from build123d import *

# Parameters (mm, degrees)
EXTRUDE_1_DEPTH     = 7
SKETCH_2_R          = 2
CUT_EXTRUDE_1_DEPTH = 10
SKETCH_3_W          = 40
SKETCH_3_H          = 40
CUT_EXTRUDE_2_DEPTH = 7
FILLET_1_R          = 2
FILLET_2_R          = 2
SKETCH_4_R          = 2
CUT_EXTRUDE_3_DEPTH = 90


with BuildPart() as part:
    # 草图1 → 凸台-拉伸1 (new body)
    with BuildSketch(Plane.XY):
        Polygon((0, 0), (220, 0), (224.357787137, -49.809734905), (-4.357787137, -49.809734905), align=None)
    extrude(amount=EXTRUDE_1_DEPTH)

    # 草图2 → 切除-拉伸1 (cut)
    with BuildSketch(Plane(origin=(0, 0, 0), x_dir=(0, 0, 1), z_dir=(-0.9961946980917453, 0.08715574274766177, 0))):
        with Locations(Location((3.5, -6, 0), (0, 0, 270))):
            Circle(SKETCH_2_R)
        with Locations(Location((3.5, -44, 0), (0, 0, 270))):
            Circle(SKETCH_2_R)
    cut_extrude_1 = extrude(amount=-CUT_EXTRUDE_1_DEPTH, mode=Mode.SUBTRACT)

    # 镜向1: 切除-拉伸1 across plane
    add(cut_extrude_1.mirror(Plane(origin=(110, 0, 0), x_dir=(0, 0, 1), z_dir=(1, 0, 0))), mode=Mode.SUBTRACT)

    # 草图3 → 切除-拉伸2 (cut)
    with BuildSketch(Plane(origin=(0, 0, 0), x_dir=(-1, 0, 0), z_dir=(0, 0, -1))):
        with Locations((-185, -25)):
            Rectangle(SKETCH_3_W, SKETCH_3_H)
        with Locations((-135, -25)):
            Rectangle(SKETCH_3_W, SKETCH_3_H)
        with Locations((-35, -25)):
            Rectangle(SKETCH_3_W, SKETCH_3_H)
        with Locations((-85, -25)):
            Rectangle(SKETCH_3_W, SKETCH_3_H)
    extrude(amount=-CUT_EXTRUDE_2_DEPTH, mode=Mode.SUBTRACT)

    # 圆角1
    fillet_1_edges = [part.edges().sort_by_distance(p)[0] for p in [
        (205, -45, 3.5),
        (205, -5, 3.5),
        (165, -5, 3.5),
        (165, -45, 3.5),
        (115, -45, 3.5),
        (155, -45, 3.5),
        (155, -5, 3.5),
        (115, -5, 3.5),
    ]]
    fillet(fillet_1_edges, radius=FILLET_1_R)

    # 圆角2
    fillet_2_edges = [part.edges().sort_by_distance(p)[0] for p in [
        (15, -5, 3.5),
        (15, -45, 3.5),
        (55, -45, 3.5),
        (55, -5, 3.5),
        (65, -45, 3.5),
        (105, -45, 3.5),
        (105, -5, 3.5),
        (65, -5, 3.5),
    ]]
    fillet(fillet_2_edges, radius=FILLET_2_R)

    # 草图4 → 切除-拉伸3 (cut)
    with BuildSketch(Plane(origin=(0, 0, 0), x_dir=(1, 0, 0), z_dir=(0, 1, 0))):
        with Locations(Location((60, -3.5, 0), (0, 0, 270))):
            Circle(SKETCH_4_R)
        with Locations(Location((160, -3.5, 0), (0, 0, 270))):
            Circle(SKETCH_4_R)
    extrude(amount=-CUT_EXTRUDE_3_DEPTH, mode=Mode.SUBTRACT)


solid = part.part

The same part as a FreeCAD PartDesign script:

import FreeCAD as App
import Part
import Sketcher
Q = App.Units.Quantity


def edges_at(feature, points):
    """Names of the edges that pass closest to the given points."""
    edges = feature.Shape.Edges
    near = lambda p: min(range(len(edges)), key=lambda i: edges[i].distToShape(Part.Vertex(*p))[0])
    return sorted({f"Edge{near(p) + 1}" for p in points})

doc = App.newDocument("Part")
body = doc.addObject("PartDesign::Body", "Body")

sketch1 = body.newObject("Sketcher::SketchObject", "Sketch")
sketch1.AttachmentSupport = (doc.getObject("XY_Plane"), [""])
sketch1.MapMode = "FlatFace"
sketch1.addGeometry([
    Part.LineSegment(App.Vector(220, 0, 0), App.Vector(0, 0, 0)),
    Part.LineSegment(App.Vector(0, 0, 0), App.Vector(-4, -50, 0)),
    Part.LineSegment(App.Vector(-4, -50, 0), App.Vector(224, -50, 0)),
    Part.LineSegment(App.Vector(224, -50, 0), App.Vector(220, 0, 0)),
], False)
sketch1.addConstraint([
    Sketcher.Constraint("Coincident", 0, 2, 1, 1),
    Sketcher.Constraint("Coincident", 1, 2, 2, 1),
    Sketcher.Constraint("Coincident", 2, 2, 3, 1),
    Sketcher.Constraint("Coincident", 3, 2, 0, 1),
    Sketcher.Constraint("Horizontal", 0),
    Sketcher.Constraint("Horizontal", 2),
    Sketcher.Constraint("Coincident", 0, 2, -1, 1),
    Sketcher.Constraint("Equal", 1, 3),
    Sketcher.Constraint("DistanceX", 0, 2, 0, 1, 220.0),
    Sketcher.Constraint("Angle", 1, Q("-95 deg")),
    Sketcher.Constraint("Distance", 1, 50.0),
])
pad1 = body.newObject("PartDesign::Pad", "Pad")
pad1.Profile = sketch1
pad1.Length = 7

sketch2 = body.newObject("Sketcher::SketchObject", "Sketch001")
sketch2.Placement = App.Placement(App.Vector(0, 0, 0), App.Rotation(App.Vector(0, 0, 1), App.Vector(0.087155743, 0.996194698, 0), App.Vector(-0.996194698, 0.087155743, 0), "ZXY"))
sketch2.addGeometry([
    Part.Circle(App.Vector(3.5, -6, 0), App.Vector(0, 0, 1), 2),
    Part.Circle(App.Vector(3.5, -44, 0), App.Vector(0, 0, 1), 2),
], False)
sketch2.addConstraint([
    Sketcher.Constraint("Equal", 0, 1),
    Sketcher.Constraint("Vertical", 0, 3, 1, 3),
    Sketcher.Constraint("Diameter", 0, 4.0),
    Sketcher.Constraint("DistanceY", 0, 3, -1, 1, 6.0),
    Sketcher.Constraint("DistanceY", 1, 3, -1, 1, 44.0),
    Sketcher.Constraint("DistanceX", -1, 1, 0, 3, 3.5),
])
pocket1 = body.newObject("PartDesign::Pocket", "Pocket")
pocket1.Profile = sketch2
pocket1.Length = 10
doc.recompute()

datumplane = body.newObject("PartDesign::Plane", "DatumPlane")
datumplane.AttachmentSupport = (doc.getObject("YZ_Plane"), [""])
datumplane.MapMode = "FlatFace"
datumplane.AttachmentOffset = App.Placement(App.Vector(0, 0, 110), App.Rotation())
mirrored = body.newObject("PartDesign::Mirrored", "Mirrored")
mirrored.Originals = [pocket1]
mirrored.MirrorPlane = (datumplane, [""])
body.Tip = mirrored

sketch3 = body.newObject("Sketcher::SketchObject", "Sketch002")
sketch3.AttachmentSupport = (doc.getObject("XY_Plane"), [""])
sketch3.MapMode = "FlatFace"
sketch3.addGeometry([
    Part.LineSegment(App.Vector(205, -5, 0), App.Vector(205, -45, 0)),
    Part.LineSegment(App.Vector(205, -45, 0), App.Vector(165, -45, 0)),
    Part.LineSegment(App.Vector(165, -45, 0), App.Vector(165, -5, 0)),
    Part.LineSegment(App.Vector(165, -5, 0), App.Vector(205, -5, 0)),
    Part.LineSegment(App.Vector(155, -5, 0), App.Vector(155, -45, 0)),
    Part.LineSegment(App.Vector(155, -45, 0), App.Vector(115, -45, 0)),
    Part.LineSegment(App.Vector(115, -45, 0), App.Vector(115, -5, 0)),
    Part.LineSegment(App.Vector(115, -5, 0), App.Vector(155, -5, 0)),
    Part.LineSegment(App.Vector(55, -5, 0), App.Vector(55, -45, 0)),
    Part.LineSegment(App.Vector(55, -45, 0), App.Vector(15, -45, 0)),
    Part.LineSegment(App.Vector(15, -45, 0), App.Vector(15, -5, 0)),
    Part.LineSegment(App.Vector(15, -5, 0), App.Vector(55, -5, 0)),
    Part.LineSegment(App.Vector(105, -5, 0), App.Vector(105, -45, 0)),
    Part.LineSegment(App.Vector(105, -45, 0), App.Vector(65, -45, 0)),
    Part.LineSegment(App.Vector(65, -45, 0), App.Vector(65, -5, 0)),
    Part.LineSegment(App.Vector(65, -5, 0), App.Vector(105, -5, 0)),
], False)
sketch3.addConstraint([
    Sketcher.Constraint("Coincident", 0, 2, 1, 1),
    Sketcher.Constraint("Coincident", 1, 2, 2, 1),
    Sketcher.Constraint("Coincident", 2, 2, 3, 1),
    Sketcher.Constraint("Coincident", 3, 2, 0, 1),
    Sketcher.Constraint("Coincident", 4, 2, 5, 1),
    Sketcher.Constraint("Coincident", 5, 2, 6, 1),
    Sketcher.Constraint("Coincident", 6, 2, 7, 1),
    Sketcher.Constraint("Coincident", 7, 2, 4, 1),
    Sketcher.Constraint("Coincident", 8, 2, 9, 1),
    Sketcher.Constraint("Coincident", 9, 2, 10, 1),
    Sketcher.Constraint("Coincident", 10, 2, 11, 1),
    Sketcher.Constraint("Coincident", 11, 2, 8, 1),
    Sketcher.Constraint("Coincident", 12, 2, 13, 1),
    Sketcher.Constraint("Coincident", 13, 2, 14, 1),
    Sketcher.Constraint("Coincident", 14, 2, 15, 1),
    Sketcher.Constraint("Coincident", 15, 2, 12, 1),
    Sketcher.Constraint("Vertical", 0),
    Sketcher.Constraint("Horizontal", 1),
    Sketcher.Constraint("Vertical", 2),
    Sketcher.Constraint("Horizontal", 3),
    Sketcher.Constraint("Vertical", 4),
    Sketcher.Constraint("Horizontal", 5),
    Sketcher.Constraint("Vertical", 6),
    Sketcher.Constraint("Horizontal", 7),
    Sketcher.Constraint("Vertical", 8),
    Sketcher.Constraint("Horizontal", 9),
    Sketcher.Constraint("Vertical", 10),
    Sketcher.Constraint("Horizontal", 11),
    Sketcher.Constraint("Vertical", 12),
    Sketcher.Constraint("Horizontal", 13),
    Sketcher.Constraint("Vertical", 14),
    Sketcher.Constraint("Horizontal", 15),
    Sketcher.Constraint("Horizontal", 1, 2, 4, 2),
    Sketcher.Constraint("Horizontal", 3, 2, 6, 2),
    Sketcher.Constraint("Horizontal", 5, 2, 8, 2),
    Sketcher.Constraint("Horizontal", 7, 2, 10, 2),
    Sketcher.Constraint("Horizontal", 9, 2, 12, 2),
    Sketcher.Constraint("Horizontal", 11, 2, 14, 2),
    Sketcher.Constraint("Equal", 3, 5),
    Sketcher.Constraint("Equal", 7, 9),
    Sketcher.Constraint("Equal", 11, 13),
    Sketcher.Constraint("Equal", 15, 0),
    Sketcher.Constraint("DistanceX", 1, 2, 1, 1, 40.0),
    Sketcher.Constraint("DistanceX", -1, 1, 0, 2, 205.0),
    Sketcher.Constraint("DistanceY", 0, 2, -1, 1, 45.0),
    Sketcher.Constraint("DistanceX", -1, 1, 4, 2, 155.0),
    Sketcher.Constraint("DistanceX", -1, 1, 8, 2, 55.0),
    Sketcher.Constraint("DistanceX", -1, 1, 12, 2, 105.0),
])
pocket2 = body.newObject("PartDesign::Pocket", "Pocket001")
pocket2.Profile = sketch3
pocket2.Length = 7
pocket2.Reversed = True
doc.recompute()

fillet = body.newObject("PartDesign::Fillet", "Fillet")
fillet.Base = (pocket2, edges_at(pocket2, [
    (205, -45, 3.5),
    (205, -5, 3.5),
    (165, -5, 3.5),
    (165, -45, 3.5),
    (115, -45, 3.5),
    (155, -45, 3.5),
    (155, -5, 3.5),
    (115, -5, 3.5),
]))
fillet.Radius = 2
doc.recompute()

fillet2 = body.newObject("PartDesign::Fillet", "Fillet001")
fillet2.Base = (fillet, edges_at(fillet, [
    (15, -5, 3.5),
    (15, -45, 3.5),
    (55, -45, 3.5),
    (55, -5, 3.5),
    (65, -45, 3.5),
    (105, -45, 3.5),
    (105, -5, 3.5),
    (65, -5, 3.5),
]))
fillet2.Radius = 2

sketch4 = body.newObject("Sketcher::SketchObject", "Sketch003")
sketch4.AttachmentSupport = (doc.getObject("XZ_Plane"), [""])
sketch4.MapMode = "FlatFace"
sketch4.addGeometry([
    Part.Circle(App.Vector(60, 3.5, 0), App.Vector(0, 0, 1), 2),
    Part.Circle(App.Vector(160, 3.5, 0), App.Vector(0, 0, 1), 2),
], False)
sketch4.addConstraint([
    Sketcher.Constraint("Equal", 0, 1),
    Sketcher.Constraint("Horizontal", 0, 3, 1, 3),
    Sketcher.Constraint("Diameter", 0, 4.0),
    Sketcher.Constraint("DistanceX", -1, 1, 0, 3, 60.0),
    Sketcher.Constraint("DistanceX", -1, 1, 1, 3, 160.0),
    Sketcher.Constraint("DistanceY", -1, 1, 0, 3, 3.5),
])
pocket3 = body.newObject("PartDesign::Pocket", "Pocket002")
pocket3.Profile = sketch4
pocket3.Length = 90
pocket3.Reversed = True

doc.recompute()
